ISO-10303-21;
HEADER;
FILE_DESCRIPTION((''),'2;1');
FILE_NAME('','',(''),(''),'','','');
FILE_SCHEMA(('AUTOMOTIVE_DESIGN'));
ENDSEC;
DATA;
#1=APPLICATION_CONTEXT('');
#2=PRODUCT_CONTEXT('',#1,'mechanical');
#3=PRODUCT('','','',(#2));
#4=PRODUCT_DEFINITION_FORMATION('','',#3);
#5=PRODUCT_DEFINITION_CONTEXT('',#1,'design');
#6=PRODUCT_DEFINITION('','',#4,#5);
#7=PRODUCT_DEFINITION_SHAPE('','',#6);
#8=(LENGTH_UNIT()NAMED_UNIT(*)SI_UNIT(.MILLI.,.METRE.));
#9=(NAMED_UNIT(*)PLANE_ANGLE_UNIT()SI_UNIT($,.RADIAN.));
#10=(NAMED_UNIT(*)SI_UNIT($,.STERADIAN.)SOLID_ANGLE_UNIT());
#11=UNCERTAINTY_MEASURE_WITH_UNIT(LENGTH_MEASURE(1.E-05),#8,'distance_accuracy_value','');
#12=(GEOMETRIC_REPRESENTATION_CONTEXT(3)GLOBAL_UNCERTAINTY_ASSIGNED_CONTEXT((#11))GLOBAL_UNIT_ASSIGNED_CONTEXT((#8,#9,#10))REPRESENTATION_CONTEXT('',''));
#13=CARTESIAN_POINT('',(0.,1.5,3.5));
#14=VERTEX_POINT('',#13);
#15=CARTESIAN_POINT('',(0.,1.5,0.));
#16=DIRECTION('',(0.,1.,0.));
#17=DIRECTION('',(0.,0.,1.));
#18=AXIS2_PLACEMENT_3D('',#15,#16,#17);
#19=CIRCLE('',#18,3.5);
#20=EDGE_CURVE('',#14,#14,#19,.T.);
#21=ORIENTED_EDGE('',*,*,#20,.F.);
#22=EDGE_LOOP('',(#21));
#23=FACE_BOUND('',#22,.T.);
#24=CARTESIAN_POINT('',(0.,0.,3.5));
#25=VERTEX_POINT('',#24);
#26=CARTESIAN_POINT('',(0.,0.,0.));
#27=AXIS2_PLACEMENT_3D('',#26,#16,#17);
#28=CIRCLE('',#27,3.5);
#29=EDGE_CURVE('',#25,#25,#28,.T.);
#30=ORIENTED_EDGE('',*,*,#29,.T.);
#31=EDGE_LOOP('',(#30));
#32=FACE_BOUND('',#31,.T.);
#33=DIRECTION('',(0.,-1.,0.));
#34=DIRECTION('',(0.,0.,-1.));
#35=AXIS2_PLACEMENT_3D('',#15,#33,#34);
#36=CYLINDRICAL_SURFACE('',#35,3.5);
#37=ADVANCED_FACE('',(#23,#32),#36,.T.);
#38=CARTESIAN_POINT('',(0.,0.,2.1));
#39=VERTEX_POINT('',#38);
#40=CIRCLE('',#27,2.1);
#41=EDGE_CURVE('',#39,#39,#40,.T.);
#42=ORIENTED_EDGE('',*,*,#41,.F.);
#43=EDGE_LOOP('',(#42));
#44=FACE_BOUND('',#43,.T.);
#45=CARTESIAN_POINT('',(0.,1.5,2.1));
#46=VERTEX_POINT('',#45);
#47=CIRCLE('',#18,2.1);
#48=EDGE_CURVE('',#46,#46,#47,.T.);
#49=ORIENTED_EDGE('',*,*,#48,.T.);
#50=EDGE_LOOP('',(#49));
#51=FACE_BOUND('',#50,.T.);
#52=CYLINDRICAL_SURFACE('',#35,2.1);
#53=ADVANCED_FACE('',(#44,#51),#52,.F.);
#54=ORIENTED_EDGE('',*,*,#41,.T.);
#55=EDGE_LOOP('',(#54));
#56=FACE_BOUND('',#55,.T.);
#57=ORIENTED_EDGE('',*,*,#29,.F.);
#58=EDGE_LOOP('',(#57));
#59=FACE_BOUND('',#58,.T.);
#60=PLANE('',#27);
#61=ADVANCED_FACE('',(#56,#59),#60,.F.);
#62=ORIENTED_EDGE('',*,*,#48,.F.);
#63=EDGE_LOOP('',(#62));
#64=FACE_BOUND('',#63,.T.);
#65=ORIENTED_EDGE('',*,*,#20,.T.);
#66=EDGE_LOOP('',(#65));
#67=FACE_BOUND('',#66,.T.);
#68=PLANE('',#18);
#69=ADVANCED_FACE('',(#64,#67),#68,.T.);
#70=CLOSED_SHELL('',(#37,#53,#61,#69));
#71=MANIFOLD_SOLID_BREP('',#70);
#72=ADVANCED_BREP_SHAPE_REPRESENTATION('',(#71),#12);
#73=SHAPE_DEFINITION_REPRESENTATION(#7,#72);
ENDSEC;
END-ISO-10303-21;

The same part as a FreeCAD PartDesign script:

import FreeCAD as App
import Part
import Sketcher
from FreeCAD import Vector
Q = App.Units.Quantity

doc = App.newDocument("Part")
params = doc.addObject("Spreadsheet::Sheet", "Params")
for row, (alias, value) in enumerate([
    ("sketch1_diameter", "7 mm"),
    ("sketch1_diameter2", "4.2 mm"),
    ("pad1_length", "1.5 mm"),
], start=1):
    params.set(f"A{row}", alias)
    params.set(f"B{row}", "=" + value)
    params.setAlias(f"B{row}", alias)

body = doc.addObject("PartDesign::Body", "Body")

# Sketch on XZ plane
sketch1 = body.newObject("Sketcher::SketchObject", "Sketch")
sketch1.AttachmentSupport = (doc.getObject("XZ_Plane"), [""])
sketch1.MapMode = "FlatFace"
sketch1.addGeometry(Part.Circle(Vector(0, 0, 0), Vector(0, 0, 1), 3.5), False)
sketch1.addGeometry(Part.Circle(Vector(0, 0, 0), Vector(0, 0, 1), 2.1), False)
sketch1.addConstraint(Sketcher.Constraint("Coincident", 0, 3, -1, 1))
sketch1.addConstraint(Sketcher.Constraint("Coincident", 1, 3, -1, 1))
sketch1.addConstraint(Sketcher.Constraint("Diameter", 0, Q("7 mm")))
sketch1.addConstraint(Sketcher.Constraint("Diameter", 1, Q("4.2 mm")))
sketch1.setExpression("Constraints[2]", "Params.sketch1_diameter")
sketch1.setExpression("Constraints[3]", "Params.sketch1_diameter2")
pad1 = body.newObject("PartDesign::Pad", "Pad")
pad1.Profile = sketch1
pad1.setExpression("Length", "Params.pad1_length")
pad1.Reversed = True

doc.recompute()
